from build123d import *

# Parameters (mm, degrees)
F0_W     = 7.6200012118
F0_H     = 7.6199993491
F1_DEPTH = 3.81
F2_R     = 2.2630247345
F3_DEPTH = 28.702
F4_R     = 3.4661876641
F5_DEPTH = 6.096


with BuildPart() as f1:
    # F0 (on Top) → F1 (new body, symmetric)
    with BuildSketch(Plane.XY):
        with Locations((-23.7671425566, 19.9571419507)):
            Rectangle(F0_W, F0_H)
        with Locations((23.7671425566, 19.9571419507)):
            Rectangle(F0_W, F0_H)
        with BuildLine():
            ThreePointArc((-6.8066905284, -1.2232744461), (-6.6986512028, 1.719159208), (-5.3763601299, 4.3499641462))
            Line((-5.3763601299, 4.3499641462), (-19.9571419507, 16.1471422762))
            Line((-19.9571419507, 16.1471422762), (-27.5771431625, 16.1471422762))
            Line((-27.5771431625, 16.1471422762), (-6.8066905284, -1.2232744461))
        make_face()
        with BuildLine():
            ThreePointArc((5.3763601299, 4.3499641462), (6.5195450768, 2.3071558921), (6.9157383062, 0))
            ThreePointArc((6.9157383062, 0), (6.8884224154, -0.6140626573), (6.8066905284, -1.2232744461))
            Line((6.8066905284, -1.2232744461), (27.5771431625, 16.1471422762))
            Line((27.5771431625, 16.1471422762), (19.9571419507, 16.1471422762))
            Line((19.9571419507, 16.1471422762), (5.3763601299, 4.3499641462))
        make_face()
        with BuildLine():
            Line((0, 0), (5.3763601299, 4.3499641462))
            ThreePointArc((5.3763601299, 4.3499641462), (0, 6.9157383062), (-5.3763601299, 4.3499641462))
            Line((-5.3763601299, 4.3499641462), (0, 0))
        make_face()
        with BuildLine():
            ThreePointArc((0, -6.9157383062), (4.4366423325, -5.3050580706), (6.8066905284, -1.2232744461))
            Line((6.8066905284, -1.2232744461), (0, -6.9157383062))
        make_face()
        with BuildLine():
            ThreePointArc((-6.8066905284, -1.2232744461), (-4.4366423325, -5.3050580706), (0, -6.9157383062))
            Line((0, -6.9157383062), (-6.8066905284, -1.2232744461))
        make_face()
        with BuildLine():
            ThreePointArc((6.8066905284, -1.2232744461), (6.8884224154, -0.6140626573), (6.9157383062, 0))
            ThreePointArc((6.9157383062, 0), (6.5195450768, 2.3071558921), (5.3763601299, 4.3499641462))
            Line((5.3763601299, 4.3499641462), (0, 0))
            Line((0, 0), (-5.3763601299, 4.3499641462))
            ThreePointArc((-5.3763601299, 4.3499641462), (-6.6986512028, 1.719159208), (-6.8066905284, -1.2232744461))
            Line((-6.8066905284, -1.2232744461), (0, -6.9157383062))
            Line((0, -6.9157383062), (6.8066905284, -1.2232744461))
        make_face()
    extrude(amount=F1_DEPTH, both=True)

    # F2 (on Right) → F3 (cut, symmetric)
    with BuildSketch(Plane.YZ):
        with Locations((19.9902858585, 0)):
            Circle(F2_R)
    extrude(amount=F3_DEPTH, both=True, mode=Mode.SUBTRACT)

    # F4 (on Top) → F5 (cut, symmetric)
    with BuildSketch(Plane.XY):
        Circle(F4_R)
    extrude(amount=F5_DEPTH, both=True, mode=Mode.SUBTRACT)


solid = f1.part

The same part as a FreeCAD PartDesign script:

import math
import FreeCAD as App
import Part
import Sketcher
from FreeCAD import Vector
Q = App.Units.Quantity

doc = App.newDocument("Part")
body = doc.addObject("PartDesign::Body", "Body")

sketch1 = doc.addObject("Sketcher::SketchObject", "Sketch")
body.addObject(sketch1)
sketch1.AttachmentSupport = (doc.XY_Plane, [""])
sketch1.MapMode = "FlatFace"
sketch1.addGeometry([
    Part.LineSegment(Vector(-28, 24, 0), Vector(-28, 16, 0)),
    Part.LineSegment(Vector(-28, 16, 0), Vector(-7, -1, 0)),
    Part.ArcOfCircle(Part.Circle(Vector(0, 0, 0), Vector(0, 0, 1), 7), math.radians(-170), math.radians(-90)),
    Part.ArcOfCircle(Part.Circle(Vector(0, 0, 0), Vector(0, 0, 1), 7), math.radians(-90), math.radians(-10)),
    Part.LineSegment(Vector(7, -1, 0), Vector(28, 16, 0)),
    Part.LineSegment(Vector(28, 16, 0), Vector(28, 24, 0)),
    Part.LineSegment(Vector(28, 24, 0), Vector(20, 24, 0)),
    Part.LineSegment(Vector(20, 24, 0), Vector(20, 16, 0)),
    Part.LineSegment(Vector(20, 16, 0), Vector(5, 4, 0)),
    Part.ArcOfCircle(Part.Circle(Vector(0, 0, 0), Vector(0, 0, 1), 7), math.radians(39), math.radians(141)),
    Part.LineSegment(Vector(-5, 4, 0), Vector(-20, 16, 0)),
    Part.LineSegment(Vector(-20, 16, 0), Vector(-20, 24, 0)),
    Part.LineSegment(Vector(-20, 24, 0), Vector(-28, 24, 0)),
], False)
sketch1.addConstraint([
    Sketcher.Constraint("Coincident", 0, 2, 1, 1),
    Sketcher.Constraint("Coincident", 1, 2, 2, 1),
    Sketcher.Constraint("Tangent", 2, 2, 3, 1),
    Sketcher.Constraint("Coincident", 3, 2, 4, 1),
    Sketcher.Constraint("Coincident", 4, 2, 5, 1),
    Sketcher.Constraint("Coincident", 5, 2, 6, 1),
    Sketcher.Constraint("Coincident", 6, 2, 7, 1),
    Sketcher.Constraint("Coincident", 7, 2, 8, 1),
    Sketcher.Constraint("Coincident", 8, 2, 9, 1),
    Sketcher.Constraint("Coincident", 9, 2, 10, 1),
    Sketcher.Constraint("Coincident", 10, 2, 11, 1),
    Sketcher.Constraint("Coincident", 11, 2, 12, 1),
    Sketcher.Constraint("Coincident", 12, 2, 0, 1),
    Sketcher.Constraint("Vertical", 0),
    Sketcher.Constraint("Vertical", 5),
    Sketcher.Constraint("Horizontal", 6),
    Sketcher.Constraint("Vertical", 7),
    Sketcher.Constraint("Vertical", 11),
    Sketcher.Constraint("Horizontal", 12),
    Sketcher.Constraint("Coincident", 2, 3, -1, 1),
    Sketcher.Constraint("Coincident", 9, 3, -1, 1),
    Sketcher.Constraint("Equal", 2, 3),
    Sketcher.Constraint("Equal", 3, 9),
    Sketcher.Constraint("Symmetric", 0, 2, 4, 2, -2),
    Sketcher.Constraint("Symmetric", 7, 2, 10, 2, -2),
    Sketcher.Constraint("PointOnObject", 2, 2, -2),
    Sketcher.Constraint("Horizontal", 1, 2, 3, 2),
    Sketcher.Constraint("Horizontal", 4, 2, 7, 2),
    Sketcher.Constraint("Horizontal", 8, 2, 9, 2),
    Sketcher.Constraint("Horizontal", 6, 2, 11, 2),
    Sketcher.Constraint("Equal", 12, 0),
    Sketcher.Constraint("DistanceX", 6, 2, 6, 1, Q("0.3 in")),
    Sketcher.Constraint("Radius", 2, Q("6.915738 mm")),
    Sketcher.Constraint("DistanceX", 1, 2, -1, 1, Q("6.806691 mm")),
    Sketcher.Constraint("DistanceY", -1, 1, 5, 2, Q("23.767142 mm")),
    Sketcher.Constraint("DistanceX", -1, 1, 6, 2, Q("19.957142 mm")),
    Sketcher.Constraint("DistanceX", -1, 1, 8, 2, Q("5.37636 mm")),
])
pad1 = doc.addObject("PartDesign::Pad", "Pad")
body.addObject(pad1)
pad1.Profile = sketch1
pad1.Length = Q("0.3 in")
pad1.Midplane = True

sketch2 = doc.addObject("Sketcher::SketchObject", "Sketch001")
body.addObject(sketch2)
sketch2.AttachmentSupport = (doc.YZ_Plane, [""])
sketch2.MapMode = "FlatFace"
sketch2.addGeometry(Part.Circle(Vector(20, 0, 0), Vector(0, 0, 1), 2.3), False)
sketch2.addConstraint([
    Sketcher.Constraint("PointOnObject", 0, 3, -1),
    Sketcher.Constraint("Diameter", 0, Q("4.526049 mm")),
    Sketcher.Constraint("DistanceX", -1, 1, 0, 3, Q("19.990286 mm")),
])
pocket1 = doc.addObject("PartDesign::Pocket", "Pocket")
body.addObject(pocket1)
pocket1.Profile = sketch2
pocket1.Length = Q("2.26 in")
pocket1.Midplane = True

sketch3 = doc.addObject("Sketcher::SketchObject", "Sketch002")
body.addObject(sketch3)
sketch3.AttachmentSupport = (doc.XY_Plane, [""])
sketch3.MapMode = "FlatFace"
sketch3.addGeometry(Part.Circle(Vector(0, 0, 0), Vector(0, 0, 1), 3.5), False)
sketch3.addConstraint([
    Sketcher.Constraint("Coincident", 0, 3, -1, 1),
    Sketcher.Constraint("Diameter", 0, Q("6.932375 mm")),
])
pocket2 = doc.addObject("PartDesign::Pocket", "Pocket001")
body.addObject(pocket2)
pocket2.Profile = sketch3
pocket2.Length = Q("0.48 in")
pocket2.Midplane = True

doc.recompute()
